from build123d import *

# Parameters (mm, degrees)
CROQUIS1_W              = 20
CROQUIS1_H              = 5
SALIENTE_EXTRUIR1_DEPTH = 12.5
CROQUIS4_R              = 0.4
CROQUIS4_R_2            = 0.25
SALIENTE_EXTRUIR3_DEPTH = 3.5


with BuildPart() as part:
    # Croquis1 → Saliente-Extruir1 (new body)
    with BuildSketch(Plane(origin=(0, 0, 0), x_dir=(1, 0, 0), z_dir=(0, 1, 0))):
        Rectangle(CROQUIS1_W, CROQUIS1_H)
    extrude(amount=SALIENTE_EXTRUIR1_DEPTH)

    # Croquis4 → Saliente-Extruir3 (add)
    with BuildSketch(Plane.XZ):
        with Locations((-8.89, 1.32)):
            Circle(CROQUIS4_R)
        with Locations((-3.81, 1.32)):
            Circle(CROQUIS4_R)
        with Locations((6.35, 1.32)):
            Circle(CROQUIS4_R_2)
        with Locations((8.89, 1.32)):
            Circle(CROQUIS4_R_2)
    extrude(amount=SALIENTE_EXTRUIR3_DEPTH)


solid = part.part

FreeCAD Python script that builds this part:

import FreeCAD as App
import Part
import Sketcher

V = App.Vector
Q = App.Units.Quantity


def add_polygon(sketch, points):
    """Adds a closed chain of lines whose ends are joined by coincident constraints."""
    first, n = sketch.GeometryCount, len(points)
    for a, b in zip(points, points[1:] + points[:1]):
        sketch.addGeometry(Part.LineSegment(App.Vector(*a, 0), App.Vector(*b, 0)), False)
    for i in range(n):
        sketch.addConstraint(Sketcher.Constraint("Coincident", first + i, 2, first + (i + 1) % n, 1))

doc = App.newDocument("Part")
body = doc.addObject("PartDesign::Body", "Body")

# Sketch on XZ plane
sketch1 = body.newObject("Sketcher::SketchObject", "Sketch")
sketch1.AttachmentSupport = (doc.getObject("XZ_Plane"), [""])
sketch1.MapMode = "FlatFace"
add_polygon(sketch1, [(-10, -2), (-10, 2), (10, 2), (10, -2)])  # lines 0-3
sketch1.addConstraint([
    Sketcher.Constraint("Vertical", 0),
    Sketcher.Constraint("Horizontal", 1),
    Sketcher.Constraint("Vertical", 2),
    Sketcher.Constraint("Horizontal", 3),
    Sketcher.Constraint("Symmetric", 0, 2, 2, 2, -1, 1),
    Sketcher.Constraint("DistanceX", 1, 1, 1, 2, Q("20 mm")),
    Sketcher.Constraint("DistanceY", 0, 1, 0, 2, Q("5 mm")),
])
pad1 = body.newObject("PartDesign::Pad", "Pad")
pad1.Profile = sketch1
pad1.Length = 12.5
pad1.Reversed = True

# Sketch on XZ plane
sketch2 = body.newObject("Sketcher::SketchObject", "Sketch001")
sketch2.AttachmentSupport = (doc.getObject("XZ_Plane"), [""])
sketch2.MapMode = "FlatFace"
sketch2.addGeometry([
    Part.Circle(V(-8.89, 1.32, 0), V(0, 0, 1), 0.4),
    Part.Circle(V(-3.81, 1.32, 0), V(0, 0, 1), 0.4),
    Part.Circle(V(6.35, 1.32, 0), V(0, 0, 1), 0.25),
    Part.Circle(V(8.89, 1.32, 0), V(0, 0, 1), 0.25),
], False)
sketch2.addConstraint([
    Sketcher.Constraint("Equal", 0, 1),
    Sketcher.Constraint("Equal", 2, 3),
    Sketcher.Constraint("Symmetric", 0, 3, 3, 3, -2),
    Sketcher.Constraint("Horizontal", 0, 3, 1, 3),
    Sketcher.Constraint("Horizontal", 1, 3, 2, 3),
    Sketcher.Constraint("Diameter", 0, Q("0.8 mm")),
    Sketcher.Constraint("Diameter", 2, Q("0.5 mm")),
    Sketcher.Constraint("DistanceX", 1, 3, 3, 3, Q("12.7 mm")),
    Sketcher.Constraint("DistanceX", 0, 3, -1, 1, Q("8.89 mm")),
    Sketcher.Constraint("DistanceY", -1, 1, 0, 3, Q("1.32 mm")),
    Sketcher.Constraint("DistanceX", -1, 1, 2, 3, Q("6.35 mm")),
])
pad2 = body.newObject("PartDesign::Pad", "Pad001")
pad2.Profile = sketch2
pad2.Length = 3.5

doc.recompute()
